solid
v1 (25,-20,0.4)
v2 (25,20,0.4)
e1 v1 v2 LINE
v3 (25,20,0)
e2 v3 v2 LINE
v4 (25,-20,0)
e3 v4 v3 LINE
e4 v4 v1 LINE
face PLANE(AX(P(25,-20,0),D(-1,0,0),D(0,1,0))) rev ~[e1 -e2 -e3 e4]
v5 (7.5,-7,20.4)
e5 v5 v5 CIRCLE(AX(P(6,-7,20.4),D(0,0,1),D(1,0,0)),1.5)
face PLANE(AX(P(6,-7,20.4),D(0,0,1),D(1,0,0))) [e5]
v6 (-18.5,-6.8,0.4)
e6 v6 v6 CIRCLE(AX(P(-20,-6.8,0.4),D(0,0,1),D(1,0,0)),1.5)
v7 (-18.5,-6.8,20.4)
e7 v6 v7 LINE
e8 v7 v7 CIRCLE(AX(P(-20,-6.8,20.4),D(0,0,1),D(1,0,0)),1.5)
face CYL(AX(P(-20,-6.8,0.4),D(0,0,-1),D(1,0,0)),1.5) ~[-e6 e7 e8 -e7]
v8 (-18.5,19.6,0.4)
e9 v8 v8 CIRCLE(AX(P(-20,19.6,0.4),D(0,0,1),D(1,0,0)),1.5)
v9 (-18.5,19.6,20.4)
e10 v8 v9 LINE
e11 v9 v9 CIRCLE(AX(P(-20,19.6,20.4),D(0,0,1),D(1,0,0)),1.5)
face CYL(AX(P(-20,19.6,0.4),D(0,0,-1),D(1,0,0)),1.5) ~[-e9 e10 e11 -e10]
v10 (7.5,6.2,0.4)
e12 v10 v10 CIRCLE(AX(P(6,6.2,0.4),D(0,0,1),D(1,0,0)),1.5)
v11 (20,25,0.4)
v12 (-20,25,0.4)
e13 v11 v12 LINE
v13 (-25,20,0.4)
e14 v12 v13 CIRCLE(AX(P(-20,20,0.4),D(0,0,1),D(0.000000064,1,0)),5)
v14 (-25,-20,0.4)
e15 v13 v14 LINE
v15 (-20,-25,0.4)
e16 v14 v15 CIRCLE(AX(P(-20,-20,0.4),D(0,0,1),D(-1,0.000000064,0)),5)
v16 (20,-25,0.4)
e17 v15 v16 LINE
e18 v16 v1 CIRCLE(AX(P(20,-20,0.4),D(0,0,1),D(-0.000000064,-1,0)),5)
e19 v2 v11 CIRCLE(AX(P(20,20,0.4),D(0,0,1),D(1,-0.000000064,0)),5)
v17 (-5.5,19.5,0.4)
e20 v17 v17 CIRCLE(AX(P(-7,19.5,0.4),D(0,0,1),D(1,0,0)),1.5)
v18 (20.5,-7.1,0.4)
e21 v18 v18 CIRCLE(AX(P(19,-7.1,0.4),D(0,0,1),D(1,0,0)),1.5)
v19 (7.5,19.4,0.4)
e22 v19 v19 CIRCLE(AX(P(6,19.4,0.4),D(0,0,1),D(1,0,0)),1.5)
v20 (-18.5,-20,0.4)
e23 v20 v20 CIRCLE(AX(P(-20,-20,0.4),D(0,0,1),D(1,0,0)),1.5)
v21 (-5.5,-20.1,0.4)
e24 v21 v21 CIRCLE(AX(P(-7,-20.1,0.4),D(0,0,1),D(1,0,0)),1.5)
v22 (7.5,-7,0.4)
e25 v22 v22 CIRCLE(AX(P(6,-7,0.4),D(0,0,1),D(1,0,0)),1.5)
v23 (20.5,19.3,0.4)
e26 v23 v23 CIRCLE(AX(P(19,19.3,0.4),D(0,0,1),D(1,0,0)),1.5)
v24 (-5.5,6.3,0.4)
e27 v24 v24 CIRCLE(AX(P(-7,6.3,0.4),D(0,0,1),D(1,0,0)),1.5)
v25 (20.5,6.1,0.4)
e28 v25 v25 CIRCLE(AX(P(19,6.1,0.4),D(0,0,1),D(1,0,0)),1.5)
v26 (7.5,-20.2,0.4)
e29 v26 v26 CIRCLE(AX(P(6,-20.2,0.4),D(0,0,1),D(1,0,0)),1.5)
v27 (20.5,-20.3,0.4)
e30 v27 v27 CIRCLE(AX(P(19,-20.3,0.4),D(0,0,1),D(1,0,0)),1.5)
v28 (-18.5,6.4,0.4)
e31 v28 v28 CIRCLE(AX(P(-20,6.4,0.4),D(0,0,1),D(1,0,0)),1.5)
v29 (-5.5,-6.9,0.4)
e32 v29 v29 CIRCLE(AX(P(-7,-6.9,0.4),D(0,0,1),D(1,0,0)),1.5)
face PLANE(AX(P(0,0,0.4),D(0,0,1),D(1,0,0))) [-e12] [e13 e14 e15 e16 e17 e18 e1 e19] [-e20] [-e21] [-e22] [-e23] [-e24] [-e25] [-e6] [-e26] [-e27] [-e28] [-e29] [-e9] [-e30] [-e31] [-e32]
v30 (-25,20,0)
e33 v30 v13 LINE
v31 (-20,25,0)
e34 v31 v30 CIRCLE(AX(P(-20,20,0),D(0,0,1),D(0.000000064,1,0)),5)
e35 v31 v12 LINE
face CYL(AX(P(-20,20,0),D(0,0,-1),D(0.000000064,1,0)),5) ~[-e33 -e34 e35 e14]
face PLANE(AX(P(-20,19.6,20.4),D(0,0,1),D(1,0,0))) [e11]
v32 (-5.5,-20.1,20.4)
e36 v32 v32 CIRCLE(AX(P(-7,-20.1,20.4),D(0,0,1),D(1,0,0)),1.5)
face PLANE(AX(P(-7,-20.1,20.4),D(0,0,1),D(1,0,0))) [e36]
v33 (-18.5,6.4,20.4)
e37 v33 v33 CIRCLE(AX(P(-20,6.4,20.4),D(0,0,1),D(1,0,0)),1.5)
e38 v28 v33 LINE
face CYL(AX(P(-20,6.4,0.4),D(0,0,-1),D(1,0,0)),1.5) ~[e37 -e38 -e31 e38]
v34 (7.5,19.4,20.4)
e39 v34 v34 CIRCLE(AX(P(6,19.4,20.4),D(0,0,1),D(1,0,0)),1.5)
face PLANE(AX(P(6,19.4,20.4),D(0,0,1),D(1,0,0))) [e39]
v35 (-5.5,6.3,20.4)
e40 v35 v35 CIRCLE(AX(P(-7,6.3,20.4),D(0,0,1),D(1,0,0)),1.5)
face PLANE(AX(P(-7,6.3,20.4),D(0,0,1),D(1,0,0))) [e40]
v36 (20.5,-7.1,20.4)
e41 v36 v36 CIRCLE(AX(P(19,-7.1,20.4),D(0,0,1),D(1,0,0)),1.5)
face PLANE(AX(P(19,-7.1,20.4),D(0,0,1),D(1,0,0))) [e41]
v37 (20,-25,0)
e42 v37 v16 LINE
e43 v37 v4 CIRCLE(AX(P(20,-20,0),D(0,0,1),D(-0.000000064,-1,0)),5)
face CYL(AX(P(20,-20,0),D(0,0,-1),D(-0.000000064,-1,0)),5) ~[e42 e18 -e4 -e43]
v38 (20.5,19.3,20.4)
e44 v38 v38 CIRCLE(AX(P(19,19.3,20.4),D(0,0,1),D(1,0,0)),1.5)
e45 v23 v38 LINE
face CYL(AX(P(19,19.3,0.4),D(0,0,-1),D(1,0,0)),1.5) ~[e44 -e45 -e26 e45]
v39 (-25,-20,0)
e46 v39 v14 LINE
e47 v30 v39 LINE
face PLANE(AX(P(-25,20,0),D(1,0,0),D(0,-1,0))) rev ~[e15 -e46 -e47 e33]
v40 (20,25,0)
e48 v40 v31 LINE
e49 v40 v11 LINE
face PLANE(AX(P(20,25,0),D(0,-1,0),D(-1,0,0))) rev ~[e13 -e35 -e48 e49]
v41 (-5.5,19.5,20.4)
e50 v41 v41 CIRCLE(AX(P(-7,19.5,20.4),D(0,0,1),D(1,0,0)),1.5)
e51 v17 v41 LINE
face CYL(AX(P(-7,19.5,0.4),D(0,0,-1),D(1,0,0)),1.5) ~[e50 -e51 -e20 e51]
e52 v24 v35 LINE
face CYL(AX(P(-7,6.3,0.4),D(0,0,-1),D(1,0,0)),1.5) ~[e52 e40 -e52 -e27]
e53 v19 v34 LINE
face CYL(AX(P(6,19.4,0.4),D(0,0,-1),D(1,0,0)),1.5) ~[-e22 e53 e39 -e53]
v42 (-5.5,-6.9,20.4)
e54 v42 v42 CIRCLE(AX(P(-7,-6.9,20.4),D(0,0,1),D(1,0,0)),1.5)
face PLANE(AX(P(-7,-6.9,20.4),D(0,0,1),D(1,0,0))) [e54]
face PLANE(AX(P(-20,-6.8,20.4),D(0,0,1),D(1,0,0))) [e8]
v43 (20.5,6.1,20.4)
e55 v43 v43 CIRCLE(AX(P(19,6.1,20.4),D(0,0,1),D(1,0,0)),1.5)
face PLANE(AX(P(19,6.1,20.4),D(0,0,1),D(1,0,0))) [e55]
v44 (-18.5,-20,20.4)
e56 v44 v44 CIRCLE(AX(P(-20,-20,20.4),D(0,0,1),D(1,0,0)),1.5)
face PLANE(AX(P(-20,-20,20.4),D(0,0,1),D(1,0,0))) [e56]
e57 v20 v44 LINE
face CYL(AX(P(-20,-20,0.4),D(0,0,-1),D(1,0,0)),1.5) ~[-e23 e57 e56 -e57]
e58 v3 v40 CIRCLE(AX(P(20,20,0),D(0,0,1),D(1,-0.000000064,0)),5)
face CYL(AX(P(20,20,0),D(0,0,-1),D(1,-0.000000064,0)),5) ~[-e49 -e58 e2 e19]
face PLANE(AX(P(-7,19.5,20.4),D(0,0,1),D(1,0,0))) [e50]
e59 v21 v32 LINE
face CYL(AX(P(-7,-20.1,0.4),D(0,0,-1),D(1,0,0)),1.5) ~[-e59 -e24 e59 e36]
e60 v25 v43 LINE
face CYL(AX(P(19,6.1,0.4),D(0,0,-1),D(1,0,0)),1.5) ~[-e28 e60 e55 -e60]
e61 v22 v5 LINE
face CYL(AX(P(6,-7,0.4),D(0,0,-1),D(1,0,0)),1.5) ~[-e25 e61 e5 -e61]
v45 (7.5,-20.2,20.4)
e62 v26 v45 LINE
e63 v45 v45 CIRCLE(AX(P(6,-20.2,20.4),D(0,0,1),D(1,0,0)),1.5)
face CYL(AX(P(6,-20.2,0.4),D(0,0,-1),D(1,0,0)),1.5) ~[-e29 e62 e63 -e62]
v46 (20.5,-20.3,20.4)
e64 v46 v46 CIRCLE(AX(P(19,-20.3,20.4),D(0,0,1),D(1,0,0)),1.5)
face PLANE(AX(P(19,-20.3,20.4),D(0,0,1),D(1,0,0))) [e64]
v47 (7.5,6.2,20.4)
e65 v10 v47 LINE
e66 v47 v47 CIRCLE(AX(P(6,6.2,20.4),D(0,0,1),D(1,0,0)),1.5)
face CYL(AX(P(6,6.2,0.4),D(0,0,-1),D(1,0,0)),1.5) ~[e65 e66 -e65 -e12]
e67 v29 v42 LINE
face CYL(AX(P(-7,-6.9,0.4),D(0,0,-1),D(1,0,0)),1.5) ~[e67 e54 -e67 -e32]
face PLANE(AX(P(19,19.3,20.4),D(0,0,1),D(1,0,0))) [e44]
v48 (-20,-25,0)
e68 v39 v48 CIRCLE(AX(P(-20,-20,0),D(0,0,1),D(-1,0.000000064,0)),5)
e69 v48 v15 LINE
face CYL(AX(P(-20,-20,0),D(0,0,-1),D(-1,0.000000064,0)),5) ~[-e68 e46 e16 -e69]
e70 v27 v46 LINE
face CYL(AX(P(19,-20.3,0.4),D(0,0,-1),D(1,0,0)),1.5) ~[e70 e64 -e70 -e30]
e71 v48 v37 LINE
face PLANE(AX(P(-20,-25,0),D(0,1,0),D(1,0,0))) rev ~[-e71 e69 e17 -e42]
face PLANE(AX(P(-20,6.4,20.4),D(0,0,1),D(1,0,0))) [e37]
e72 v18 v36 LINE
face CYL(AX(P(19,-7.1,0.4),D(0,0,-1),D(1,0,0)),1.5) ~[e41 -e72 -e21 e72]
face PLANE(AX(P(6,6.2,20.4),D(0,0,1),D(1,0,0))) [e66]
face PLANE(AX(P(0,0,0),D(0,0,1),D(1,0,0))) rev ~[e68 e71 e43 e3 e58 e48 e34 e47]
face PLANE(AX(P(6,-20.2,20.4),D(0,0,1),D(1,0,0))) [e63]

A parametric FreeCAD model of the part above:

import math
import FreeCAD as App
import Part
import Sketcher

V = App.Vector
Q = App.Units.Quantity

doc = App.newDocument("Part")
params = doc.addObject("Spreadsheet::Sheet", "Params")
for row, (alias, value) in enumerate([
    ("sketch1_radius", "5 mm"),
    ("sketch1_width", "40 mm"),
    ("pad1_length", "0.4 mm"),
    ("sketch2_diameter", "3 mm"),
    ("pad2_length", "20 mm"),
], start=1):
    params.set(f"A{row}", alias)
    params.set(f"B{row}", "=" + value)
    params.setAlias(f"B{row}", alias)

body = doc.addObject("PartDesign::Body", "Body")

sketch1 = doc.addObject("Sketcher::SketchObject", "Sketch")
body.addObject(sketch1)
sketch1.AttachmentSupport = (doc.XY_Plane, [""])
sketch1.MapMode = "FlatFace"
sketch1.addGeometry([
    Part.ArcOfCircle(Part.Circle(V(-20, -20, 0), V(0, 0, 1), 5), math.radians(180), math.radians(270)),
    Part.LineSegment(V(-20, -25, 0), V(20, -25, 0)),
    Part.ArcOfCircle(Part.Circle(V(20, -20, 0), V(0, 0, 1), 5), math.radians(-90), math.radians(0)),
    Part.LineSegment(V(25, -20, 0), V(25, 20, 0)),
    Part.ArcOfCircle(Part.Circle(V(20, 20, 0), V(0, 0, 1), 5), math.radians(0), math.radians(90)),
    Part.LineSegment(V(20, 25, 0), V(-20, 25, 0)),
    Part.ArcOfCircle(Part.Circle(V(-20, 20, 0), V(0, 0, 1), 5), math.radians(90), math.radians(180)),
    Part.LineSegment(V(-25, 20, 0), V(-25, -20, 0)),
], False)
sketch1.addConstraint([
    Sketcher.Constraint("Tangent", 0, 2, 1, 1),
    Sketcher.Constraint("Tangent", 1, 2, 2, 1),
    Sketcher.Constraint("Tangent", 2, 2, 3, 1),
    Sketcher.Constraint("Tangent", 3, 2, 4, 1),
    Sketcher.Constraint("Tangent", 4, 2, 5, 1),
    Sketcher.Constraint("Tangent", 5, 2, 6, 1),
    Sketcher.Constraint("Tangent", 6, 2, 7, 1),
    Sketcher.Constraint("Tangent", 7, 2, 0, 1),
    Sketcher.Constraint("Horizontal", 1),
    Sketcher.Constraint("Vertical", 3),
    Sketcher.Constraint("Horizontal", 5),
    Sketcher.Constraint("Vertical", 7),
    Sketcher.Constraint("Equal", 0, 2),
    Sketcher.Constraint("Equal", 2, 4),
    Sketcher.Constraint("Equal", 4, 6),
    Sketcher.Constraint("Symmetric", 0, 3, 4, 3, -1, 1),
    Sketcher.Constraint("Equal", 5, 3),
    Sketcher.Constraint("Radius", 0, Q("5 mm")),
    Sketcher.Constraint("DistanceX", 1, 1, 1, 2, Q("40 mm")),
])
sketch1.setExpression("Constraints[17]", "Params.sketch1_radius")
sketch1.setExpression("Constraints[18]", "Params.sketch1_width")
pad1 = doc.addObject("PartDesign::Pad", "Pad")
body.addObject(pad1)
pad1.Profile = sketch1
pad1.setExpression("Length", "Params.pad1_length")

sketch2 = doc.addObject("Sketcher::SketchObject", "Sketch001")
body.addObject(sketch2)
sketch2.AttachmentSupport = (doc.XY_Plane, [""])
sketch2.MapMode = "FlatFace"
sketch2.AttachmentOffset = App.Placement(V(0, 0, 0.4), App.Rotation())
sketch2.addGeometry([
    Part.Circle(V(-20, -20, 0), V(0, 0, 1), 1.5),
    Part.Circle(V(-20, -6.8, 0), V(0, 0, 1), 1.5),
    Part.Circle(V(-20, 6.4, 0), V(0, 0, 1), 1.5),
    Part.Circle(V(-20, 19.6, 0), V(0, 0, 1), 1.5),
    Part.Circle(V(-7, -20.1, 0), V(0, 0, 1), 1.5),
    Part.Circle(V(-7, -6.9, 0), V(0, 0, 1), 1.5),
    Part.Circle(V(-7, 6.3, 0), V(0, 0, 1), 1.5),
    Part.Circle(V(-7, 19.5, 0), V(0, 0, 1), 1.5),
    Part.Circle(V(6, -20.2, 0), V(0, 0, 1), 1.5),
    Part.Circle(V(6, -7, 0), V(0, 0, 1), 1.5),
    Part.Circle(V(6, 6.2, 0), V(0, 0, 1), 1.5),
    Part.Circle(V(6, 19.4, 0), V(0, 0, 1), 1.5),
    Part.Circle(V(19, -20.3, 0), V(0, 0, 1), 1.5),
    Part.Circle(V(19, -7.1, 0), V(0, 0, 1), 1.5),
    Part.Circle(V(19, 6.1, 0), V(0, 0, 1), 1.5),
    Part.Circle(V(19, 19.3, 0), V(0, 0, 1), 1.5),
], False)
sketch2.addConstraint([
    Sketcher.Constraint("Equal", 0, 1),
    Sketcher.Constraint("Equal", 1, 2),
    Sketcher.Constraint("Equal", 2, 3),
    Sketcher.Constraint("Equal", 3, 4),
    Sketcher.Constraint("Equal", 4, 5),
    Sketcher.Constraint("Equal", 5, 6),
    Sketcher.Constraint("Equal", 6, 7),
    Sketcher.Constraint("Equal", 7, 8),
    Sketcher.Constraint("Equal", 8, 9),
    Sketcher.Constraint("Equal", 9, 10),
    Sketcher.Constraint("Equal", 10, 11),
    Sketcher.Constraint("Equal", 11, 12),
    Sketcher.Constraint("Equal", 12, 13),
    Sketcher.Constraint("Equal", 13, 14),
    Sketcher.Constraint("Equal", 14, 15),
    Sketcher.Constraint("Vertical", 0, 3, 1, 3),
    Sketcher.Constraint("Vertical", 1, 3, 2, 3),
    Sketcher.Constraint("Vertical", 2, 3, 3, 3),
    Sketcher.Constraint("Vertical", 4, 3, 5, 3),
    Sketcher.Constraint("Vertical", 5, 3, 6, 3),
    Sketcher.Constraint("Vertical", 6, 3, 7, 3),
    Sketcher.Constraint("Vertical", 8, 3, 9, 3),
    Sketcher.Constraint("Vertical", 9, 3, 10, 3),
    Sketcher.Constraint("Vertical", 10, 3, 11, 3),
    Sketcher.Constraint("Vertical", 12, 3, 13, 3),
    Sketcher.Constraint("Vertical", 13, 3, 14, 3),
    Sketcher.Constraint("Vertical", 14, 3, 15, 3),
    Sketcher.Constraint("Diameter", 0, Q("3 mm")),
    Sketcher.Constraint("DistanceX", 0, 3, -1, 1, Q("20 mm")),
    Sketcher.Constraint("DistanceY", 0, 3, -1, 1, Q("20 mm")),
    Sketcher.Constraint("DistanceX", 4, 3, -1, 1, Q("7 mm")),
    Sketcher.Constraint("DistanceX", -1, 1, 8, 3, Q("6 mm")),
    Sketcher.Constraint("DistanceY", 9, 3, -1, 1, Q("7 mm")),
    Sketcher.Constraint("DistanceX", -1, 1, 12, 3, Q("19 mm")),
    Sketcher.Constraint("DistanceY", 1, 3, -1, 1, Q("6.8 mm")),
    Sketcher.Constraint("DistanceY", -1, 1, 2, 3, Q("6.4 mm")),
    Sketcher.Constraint("DistanceY", -1, 1, 3, 3, Q("19.6 mm")),
    Sketcher.Constraint("DistanceY", 4, 3, -1, 1, Q("20.1 mm")),
    Sketcher.Constraint("DistanceY", 5, 3, -1, 1, Q("6.9 mm")),
    Sketcher.Constraint("DistanceY", -1, 1, 6, 3, Q("6.3 mm")),
    Sketcher.Constraint("DistanceY", -1, 1, 7, 3, Q("19.5 mm")),
    Sketcher.Constraint("DistanceY", 8, 3, -1, 1, Q("20.2 mm")),
    Sketcher.Constraint("DistanceY", -1, 1, 10, 3, Q("6.2 mm")),
    Sketcher.Constraint("DistanceY", -1, 1, 11, 3, Q("19.4 mm")),
    Sketcher.Constraint("DistanceY", 12, 3, -1, 1, Q("20.3 mm")),
    Sketcher.Constraint("DistanceY", 13, 3, -1, 1, Q("7.1 mm")),
    Sketcher.Constraint("DistanceY", -1, 1, 14, 3, Q("6.1 mm")),
    Sketcher.Constraint("DistanceY", -1, 1, 15, 3, Q("19.3 mm")),
])
sketch2.setExpression("Constraints[27]", "Params.sketch2_diameter")
pad2 = doc.addObject("PartDesign::Pad", "Pad001")
body.addObject(pad2)
pad2.Profile = sketch2
pad2.setExpression("Length", "Params.pad2_length")

doc.recompute()
